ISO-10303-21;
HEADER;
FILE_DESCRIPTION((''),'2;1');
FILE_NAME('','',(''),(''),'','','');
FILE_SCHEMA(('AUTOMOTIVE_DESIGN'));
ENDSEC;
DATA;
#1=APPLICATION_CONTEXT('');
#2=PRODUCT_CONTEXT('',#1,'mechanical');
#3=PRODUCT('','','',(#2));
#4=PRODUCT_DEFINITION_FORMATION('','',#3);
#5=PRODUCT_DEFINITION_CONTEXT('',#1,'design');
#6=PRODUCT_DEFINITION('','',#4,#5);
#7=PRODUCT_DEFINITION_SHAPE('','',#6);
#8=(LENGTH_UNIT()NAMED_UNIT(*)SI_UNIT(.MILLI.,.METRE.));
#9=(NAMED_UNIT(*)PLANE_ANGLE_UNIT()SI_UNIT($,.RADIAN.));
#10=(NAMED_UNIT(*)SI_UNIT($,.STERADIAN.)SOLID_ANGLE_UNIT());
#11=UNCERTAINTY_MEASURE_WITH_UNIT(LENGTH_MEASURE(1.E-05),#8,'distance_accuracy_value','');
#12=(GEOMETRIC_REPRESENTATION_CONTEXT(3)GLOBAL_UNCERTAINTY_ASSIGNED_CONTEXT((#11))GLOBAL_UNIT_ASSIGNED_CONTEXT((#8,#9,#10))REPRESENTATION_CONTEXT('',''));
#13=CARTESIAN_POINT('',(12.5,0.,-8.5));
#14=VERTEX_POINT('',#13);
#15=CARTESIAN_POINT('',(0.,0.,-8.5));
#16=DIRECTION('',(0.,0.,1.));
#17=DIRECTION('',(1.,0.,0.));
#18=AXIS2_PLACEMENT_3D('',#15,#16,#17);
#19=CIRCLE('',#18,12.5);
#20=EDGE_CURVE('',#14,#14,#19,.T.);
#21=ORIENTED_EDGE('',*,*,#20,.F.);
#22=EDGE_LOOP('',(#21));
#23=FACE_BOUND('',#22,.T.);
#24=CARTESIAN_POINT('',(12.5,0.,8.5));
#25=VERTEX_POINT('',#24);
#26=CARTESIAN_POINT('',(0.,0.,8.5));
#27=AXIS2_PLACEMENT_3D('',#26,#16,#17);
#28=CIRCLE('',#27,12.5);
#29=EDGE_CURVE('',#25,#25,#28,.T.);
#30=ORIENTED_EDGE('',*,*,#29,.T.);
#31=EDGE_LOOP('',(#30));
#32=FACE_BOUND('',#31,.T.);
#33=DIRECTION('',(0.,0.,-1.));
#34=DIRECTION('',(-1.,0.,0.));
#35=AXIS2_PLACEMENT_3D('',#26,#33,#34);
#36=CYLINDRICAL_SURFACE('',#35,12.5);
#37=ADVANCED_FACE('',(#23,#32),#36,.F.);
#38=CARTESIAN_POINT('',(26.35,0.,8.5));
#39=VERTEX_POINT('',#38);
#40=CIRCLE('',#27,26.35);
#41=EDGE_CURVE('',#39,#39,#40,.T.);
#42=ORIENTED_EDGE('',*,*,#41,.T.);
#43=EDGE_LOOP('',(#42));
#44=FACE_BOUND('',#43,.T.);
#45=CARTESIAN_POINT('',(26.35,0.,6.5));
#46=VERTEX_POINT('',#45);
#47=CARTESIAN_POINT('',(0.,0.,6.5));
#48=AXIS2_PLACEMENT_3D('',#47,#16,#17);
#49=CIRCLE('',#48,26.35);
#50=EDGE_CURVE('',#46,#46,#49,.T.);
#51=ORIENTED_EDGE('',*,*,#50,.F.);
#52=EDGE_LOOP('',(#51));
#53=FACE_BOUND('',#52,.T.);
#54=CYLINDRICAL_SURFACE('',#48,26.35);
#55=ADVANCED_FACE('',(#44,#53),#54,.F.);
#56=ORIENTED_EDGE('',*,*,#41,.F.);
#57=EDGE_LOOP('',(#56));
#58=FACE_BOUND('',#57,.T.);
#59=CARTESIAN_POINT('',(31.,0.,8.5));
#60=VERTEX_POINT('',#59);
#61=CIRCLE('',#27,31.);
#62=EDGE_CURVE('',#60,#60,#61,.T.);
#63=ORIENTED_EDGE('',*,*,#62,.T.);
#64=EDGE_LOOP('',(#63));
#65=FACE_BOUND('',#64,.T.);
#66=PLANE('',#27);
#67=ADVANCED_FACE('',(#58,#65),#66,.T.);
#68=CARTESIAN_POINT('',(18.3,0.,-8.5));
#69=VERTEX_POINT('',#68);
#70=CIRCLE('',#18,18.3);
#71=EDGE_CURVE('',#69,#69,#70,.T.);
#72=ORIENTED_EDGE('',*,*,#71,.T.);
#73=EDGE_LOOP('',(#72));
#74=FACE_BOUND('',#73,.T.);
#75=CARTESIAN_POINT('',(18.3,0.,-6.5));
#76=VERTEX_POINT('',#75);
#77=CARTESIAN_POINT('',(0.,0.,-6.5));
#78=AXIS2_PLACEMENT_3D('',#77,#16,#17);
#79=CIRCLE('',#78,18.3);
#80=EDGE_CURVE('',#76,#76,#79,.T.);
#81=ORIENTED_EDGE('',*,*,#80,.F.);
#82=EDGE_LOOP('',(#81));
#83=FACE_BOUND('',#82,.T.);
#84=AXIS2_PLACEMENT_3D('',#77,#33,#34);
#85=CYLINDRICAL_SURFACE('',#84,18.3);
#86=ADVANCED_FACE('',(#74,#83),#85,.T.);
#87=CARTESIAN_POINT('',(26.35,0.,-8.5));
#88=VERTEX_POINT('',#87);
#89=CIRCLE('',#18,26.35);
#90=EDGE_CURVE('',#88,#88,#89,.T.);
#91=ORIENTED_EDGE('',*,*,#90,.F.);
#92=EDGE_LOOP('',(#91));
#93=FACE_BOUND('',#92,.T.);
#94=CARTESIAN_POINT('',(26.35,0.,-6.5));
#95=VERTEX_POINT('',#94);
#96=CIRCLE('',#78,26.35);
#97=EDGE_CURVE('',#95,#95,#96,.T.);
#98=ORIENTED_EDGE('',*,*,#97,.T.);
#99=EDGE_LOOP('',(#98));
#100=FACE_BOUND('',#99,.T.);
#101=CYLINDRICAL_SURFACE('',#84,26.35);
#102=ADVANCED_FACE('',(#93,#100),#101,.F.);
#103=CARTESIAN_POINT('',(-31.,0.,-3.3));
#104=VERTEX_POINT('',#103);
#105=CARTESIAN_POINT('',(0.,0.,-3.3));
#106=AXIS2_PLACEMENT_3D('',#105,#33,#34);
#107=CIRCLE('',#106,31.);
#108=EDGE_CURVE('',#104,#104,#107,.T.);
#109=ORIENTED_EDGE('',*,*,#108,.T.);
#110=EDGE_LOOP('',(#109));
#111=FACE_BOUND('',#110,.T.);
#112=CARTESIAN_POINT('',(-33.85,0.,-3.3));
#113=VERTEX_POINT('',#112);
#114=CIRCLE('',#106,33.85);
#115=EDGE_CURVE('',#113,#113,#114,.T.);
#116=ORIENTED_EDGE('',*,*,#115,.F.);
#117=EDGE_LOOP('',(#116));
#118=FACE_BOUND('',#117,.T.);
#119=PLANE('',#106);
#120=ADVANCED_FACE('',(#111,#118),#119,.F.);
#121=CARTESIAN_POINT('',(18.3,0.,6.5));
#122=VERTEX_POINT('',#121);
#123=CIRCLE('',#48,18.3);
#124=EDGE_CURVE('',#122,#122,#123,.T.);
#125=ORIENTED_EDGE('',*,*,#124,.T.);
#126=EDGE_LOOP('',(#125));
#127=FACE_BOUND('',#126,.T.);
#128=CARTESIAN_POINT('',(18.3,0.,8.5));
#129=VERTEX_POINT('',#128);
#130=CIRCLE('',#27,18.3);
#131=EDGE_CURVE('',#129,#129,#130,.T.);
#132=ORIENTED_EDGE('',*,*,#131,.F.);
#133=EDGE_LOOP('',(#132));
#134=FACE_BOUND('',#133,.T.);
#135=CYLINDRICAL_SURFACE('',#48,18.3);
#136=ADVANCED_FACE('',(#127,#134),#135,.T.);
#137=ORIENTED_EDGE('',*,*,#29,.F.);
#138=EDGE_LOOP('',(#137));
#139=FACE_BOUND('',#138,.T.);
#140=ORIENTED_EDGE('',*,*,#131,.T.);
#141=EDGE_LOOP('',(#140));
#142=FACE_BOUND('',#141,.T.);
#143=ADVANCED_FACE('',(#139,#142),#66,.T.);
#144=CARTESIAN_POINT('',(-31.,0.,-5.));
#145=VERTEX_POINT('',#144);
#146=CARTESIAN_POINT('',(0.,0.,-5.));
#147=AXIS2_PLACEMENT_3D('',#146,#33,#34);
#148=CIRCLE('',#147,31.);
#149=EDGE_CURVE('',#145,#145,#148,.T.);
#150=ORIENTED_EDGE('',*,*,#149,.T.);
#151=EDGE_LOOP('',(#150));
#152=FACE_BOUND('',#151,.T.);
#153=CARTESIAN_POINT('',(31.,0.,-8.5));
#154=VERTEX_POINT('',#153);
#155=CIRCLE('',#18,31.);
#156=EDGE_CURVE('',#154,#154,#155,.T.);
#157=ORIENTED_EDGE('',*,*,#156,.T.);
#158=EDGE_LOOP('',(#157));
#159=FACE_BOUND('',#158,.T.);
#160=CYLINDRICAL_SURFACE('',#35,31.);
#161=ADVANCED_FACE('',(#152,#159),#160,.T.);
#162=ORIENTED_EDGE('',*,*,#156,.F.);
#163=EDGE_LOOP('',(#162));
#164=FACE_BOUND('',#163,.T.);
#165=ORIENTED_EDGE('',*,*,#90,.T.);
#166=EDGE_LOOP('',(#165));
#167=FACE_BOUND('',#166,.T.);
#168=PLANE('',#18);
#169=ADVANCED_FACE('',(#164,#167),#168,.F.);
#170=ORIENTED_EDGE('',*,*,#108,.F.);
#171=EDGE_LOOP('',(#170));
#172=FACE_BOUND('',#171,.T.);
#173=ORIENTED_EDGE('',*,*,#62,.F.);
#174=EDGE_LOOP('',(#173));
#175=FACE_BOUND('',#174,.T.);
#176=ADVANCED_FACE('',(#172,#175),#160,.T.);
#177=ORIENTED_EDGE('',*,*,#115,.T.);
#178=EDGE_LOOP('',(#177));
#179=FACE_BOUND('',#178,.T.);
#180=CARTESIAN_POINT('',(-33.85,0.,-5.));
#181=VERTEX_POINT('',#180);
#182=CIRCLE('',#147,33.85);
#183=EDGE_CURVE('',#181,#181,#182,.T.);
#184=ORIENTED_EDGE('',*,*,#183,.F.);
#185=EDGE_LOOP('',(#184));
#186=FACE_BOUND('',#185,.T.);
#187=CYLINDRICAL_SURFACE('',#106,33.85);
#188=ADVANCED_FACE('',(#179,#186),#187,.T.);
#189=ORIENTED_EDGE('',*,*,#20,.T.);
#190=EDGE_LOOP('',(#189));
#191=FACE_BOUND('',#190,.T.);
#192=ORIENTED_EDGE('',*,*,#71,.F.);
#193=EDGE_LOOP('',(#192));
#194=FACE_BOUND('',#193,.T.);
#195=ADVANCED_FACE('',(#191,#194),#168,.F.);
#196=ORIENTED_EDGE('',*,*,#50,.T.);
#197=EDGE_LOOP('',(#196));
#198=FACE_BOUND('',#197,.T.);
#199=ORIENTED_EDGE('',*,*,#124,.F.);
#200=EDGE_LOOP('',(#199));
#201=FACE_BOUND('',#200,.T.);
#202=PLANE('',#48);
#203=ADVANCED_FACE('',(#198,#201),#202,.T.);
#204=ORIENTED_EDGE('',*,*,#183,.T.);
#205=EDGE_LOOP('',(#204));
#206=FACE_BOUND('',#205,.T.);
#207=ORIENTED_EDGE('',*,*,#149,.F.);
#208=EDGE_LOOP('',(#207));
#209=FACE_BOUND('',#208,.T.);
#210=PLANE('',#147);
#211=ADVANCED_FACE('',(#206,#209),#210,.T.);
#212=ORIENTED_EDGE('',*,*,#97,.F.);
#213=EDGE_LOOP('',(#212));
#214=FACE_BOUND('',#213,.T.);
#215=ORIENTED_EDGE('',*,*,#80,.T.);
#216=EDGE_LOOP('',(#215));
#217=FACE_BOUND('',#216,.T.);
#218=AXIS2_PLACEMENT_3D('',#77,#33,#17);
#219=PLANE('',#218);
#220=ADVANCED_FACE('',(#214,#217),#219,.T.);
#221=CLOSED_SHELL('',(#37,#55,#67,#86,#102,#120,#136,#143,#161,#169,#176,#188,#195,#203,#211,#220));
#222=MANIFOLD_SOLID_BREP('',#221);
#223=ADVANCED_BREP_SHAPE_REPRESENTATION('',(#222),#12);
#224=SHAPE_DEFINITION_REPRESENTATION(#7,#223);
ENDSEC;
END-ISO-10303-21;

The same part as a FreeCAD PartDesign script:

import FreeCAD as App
import Part
import Sketcher
from FreeCAD import Vector
Q = App.Units.Quantity

doc = App.newDocument("Part")
body = doc.addObject("PartDesign::Body", "Body")

sketch1 = body.newObject("Sketcher::SketchObject", "Sketch")
sketch1.AttachmentSupport = (doc.getObject("XY_Plane"), [""])
sketch1.MapMode = "FlatFace"
sketch1.addGeometry([
    Part.Circle(Vector(0, 0, 0), Vector(0, 0, 1), 31),
    Part.Circle(Vector(0, 0, 0), Vector(0, 0, 1), 12),
], False)
sketch1.addConstraint([
    Sketcher.Constraint("Coincident", 0, 3, -1, 1),
    Sketcher.Constraint("Coincident", 1, 3, -1, 1),
    Sketcher.Constraint("Diameter", 0, Q("62 mm")),
    Sketcher.Constraint("Diameter", 1, Q("25 mm")),
])
pad1 = body.newObject("PartDesign::Pad", "Pad")
pad1.Profile = sketch1
pad1.Length = 17
pad1.Midplane = True

sketch2 = body.newObject("Sketcher::SketchObject", "Sketch001")
sketch2.AttachmentSupport = (doc.getObject("XY_Plane"), [""])
sketch2.MapMode = "FlatFace"
sketch2.AttachmentOffset = App.Placement(Vector(0, 0, 8.5), App.Rotation())
sketch2.addGeometry([
    Part.Circle(Vector(0, 0, 0), Vector(0, 0, 1), 26),
    Part.Circle(Vector(0, 0, 0), Vector(0, 0, 1), 18),
], False)
sketch2.addConstraint([
    Sketcher.Constraint("Coincident", 0, 3, -1, 1),
    Sketcher.Constraint("Coincident", 1, 3, -1, 1),
    Sketcher.Constraint("Diameter", 0, Q("52.7 mm")),
    Sketcher.Constraint("Diameter", 1, Q("36.6 mm")),
])
pocket1 = body.newObject("PartDesign::Pocket", "Pocket")
pocket1.Profile = sketch2
pocket1.Length = 2
doc.recompute()

mirrored = body.newObject("PartDesign::Mirrored", "Mirrored")
mirrored.Originals = [pocket1]
mirrored.MirrorPlane = (doc.getObject("XY_Plane"), [""])
body.Tip = mirrored

sketch3 = body.newObject("Sketcher::SketchObject", "Sketch002")
sketch3.AttachmentSupport = (doc.getObject("XY_Plane"), [""])
sketch3.MapMode = "FlatFace"
sketch3.AttachmentOffset = App.Placement(Vector(0, 0, -3.3), App.Rotation())
sketch3.addGeometry([
    Part.Circle(Vector(0, 0, 0), Vector(0, 0, 1), 34),
    Part.Circle(Vector(0, 0, 0), Vector(0, 0, 1), 31),
], False)
sketch3.addConstraint([
    Sketcher.Constraint("Coincident", 0, 3, -1, 1),
    Sketcher.Constraint("Coincident", 1, 3, -1, 1),
    Sketcher.Constraint("Diameter", 1, Q("62 mm")),
    Sketcher.Constraint("Diameter", 0, Q("67.7 mm")),
])
pad2 = body.newObject("PartDesign::Pad", "Pad001")
pad2.Profile = sketch3
pad2.Length = 1.7
pad2.Reversed = True

doc.recompute()
